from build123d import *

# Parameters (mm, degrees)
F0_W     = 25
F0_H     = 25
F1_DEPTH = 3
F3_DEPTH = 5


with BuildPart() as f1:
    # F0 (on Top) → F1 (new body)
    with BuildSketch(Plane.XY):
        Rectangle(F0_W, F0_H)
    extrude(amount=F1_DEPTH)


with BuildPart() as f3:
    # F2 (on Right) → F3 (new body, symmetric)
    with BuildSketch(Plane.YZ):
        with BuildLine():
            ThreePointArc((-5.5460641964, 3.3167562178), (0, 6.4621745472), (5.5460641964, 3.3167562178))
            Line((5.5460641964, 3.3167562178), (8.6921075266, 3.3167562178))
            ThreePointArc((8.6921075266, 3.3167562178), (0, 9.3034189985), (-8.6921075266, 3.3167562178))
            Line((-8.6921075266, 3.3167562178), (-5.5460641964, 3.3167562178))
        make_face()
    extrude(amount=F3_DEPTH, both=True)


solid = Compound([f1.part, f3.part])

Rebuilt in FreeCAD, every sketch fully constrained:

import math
import FreeCAD as App
import Part
import Sketcher

V = App.Vector
Q = App.Units.Quantity

doc = App.newDocument("Part")
params = doc.addObject("Spreadsheet::Sheet", "Params")
for row, (alias, value) in enumerate([
    ("sketch1_width", "25 mm"),
    ("pad1_length", "3 mm"),
    ("pad2_length", "10 mm"),
], start=1):
    params.set(f"A{row}", alias)
    params.set(f"B{row}", "=" + value)
    params.setAlias(f"B{row}", alias)

body = doc.addObject("PartDesign::Body", "Body")

# Sketch on XY plane
sketch1 = doc.addObject("Sketcher::SketchObject", "Sketch")
body.addObject(sketch1)
sketch1.AttachmentSupport = (doc.XY_Plane, [""])
sketch1.MapMode = "FlatFace"
sketch1.addGeometry([
    Part.LineSegment(V(-12, 12, 0), V(-12, -12, 0)),
    Part.LineSegment(V(-12, -12, 0), V(12, -12, 0)),
    Part.LineSegment(V(12, -12, 0), V(12, 12, 0)),
    Part.LineSegment(V(12, 12, 0), V(-12, 12, 0)),
], False)
sketch1.addConstraint([
    Sketcher.Constraint("Coincident", 0, 2, 1, 1),
    Sketcher.Constraint("Coincident", 1, 2, 2, 1),
    Sketcher.Constraint("Coincident", 2, 2, 3, 1),
    Sketcher.Constraint("Coincident", 3, 2, 0, 1),
    Sketcher.Constraint("Vertical", 0),
    Sketcher.Constraint("Horizontal", 1),
    Sketcher.Constraint("Vertical", 2),
    Sketcher.Constraint("Horizontal", 3),
    Sketcher.Constraint("Symmetric", 0, 2, 2, 2, -1, 1),
    Sketcher.Constraint("Equal", 3, 0),
    Sketcher.Constraint("DistanceX", 1, 1, 1, 2, Q("25 mm")),
])
sketch1.setExpression("Constraints[10]", "Params.sketch1_width")
pad1 = doc.addObject("PartDesign::Pad", "Pad")
body.addObject(pad1)
pad1.Profile = sketch1
pad1.setExpression("Length", "Params.pad1_length")
body2 = doc.addObject("PartDesign::Body", "Body001")

# Sketch on YZ plane
sketch2 = doc.addObject("Sketcher::SketchObject", "Sketch001")
body2.addObject(sketch2)
sketch2.AttachmentSupport = (doc.getObject("YZ_Plane001"), [""])
sketch2.MapMode = "FlatFace"
sketch2.addGeometry([
    Part.ArcOfCircle(Part.Circle(V(0, 0, 0), V(0, 0, 1), 6.5), math.radians(31), math.radians(149)),
    Part.LineSegment(V(5.5, 3.3, 0), V(8.7, 3.3, 0)),
    Part.ArcOfCircle(Part.Circle(V(0, 0, 0), V(0, 0, 1), 9.3), math.radians(21), math.radians(159)),
    Part.LineSegment(V(-8.7, 3.3, 0), V(-5.5, 3.3, 0)),
], False)
sketch2.addConstraint([
    Sketcher.Constraint("Coincident", 0, 1, 1, 1),
    Sketcher.Constraint("Coincident", 1, 2, 2, 1),
    Sketcher.Constraint("Coincident", 2, 2, 3, 1),
    Sketcher.Constraint("Coincident", 3, 2, 0, 2),
    Sketcher.Constraint("Horizontal", 1),
    Sketcher.Constraint("Horizontal", 3),
    Sketcher.Constraint("Coincident", 0, 3, -1, 1),
    Sketcher.Constraint("Coincident", 2, 3, -1, 1),
    Sketcher.Constraint("Horizontal", 1, 2, 2, 2),
    Sketcher.Constraint("Radius", 2, Q("9.303419 mm")),
    Sketcher.Constraint("Radius", 0, Q("6.462175 mm")),
    Sketcher.Constraint("DistanceX", 1, 1, 1, 2, Q("3.146043 mm")),
])
pad2 = doc.addObject("PartDesign::Pad", "Pad001")
body2.addObject(pad2)
pad2.Profile = sketch2
pad2.setExpression("Length", "Params.pad2_length")
pad2.Midplane = True

doc.recompute()
